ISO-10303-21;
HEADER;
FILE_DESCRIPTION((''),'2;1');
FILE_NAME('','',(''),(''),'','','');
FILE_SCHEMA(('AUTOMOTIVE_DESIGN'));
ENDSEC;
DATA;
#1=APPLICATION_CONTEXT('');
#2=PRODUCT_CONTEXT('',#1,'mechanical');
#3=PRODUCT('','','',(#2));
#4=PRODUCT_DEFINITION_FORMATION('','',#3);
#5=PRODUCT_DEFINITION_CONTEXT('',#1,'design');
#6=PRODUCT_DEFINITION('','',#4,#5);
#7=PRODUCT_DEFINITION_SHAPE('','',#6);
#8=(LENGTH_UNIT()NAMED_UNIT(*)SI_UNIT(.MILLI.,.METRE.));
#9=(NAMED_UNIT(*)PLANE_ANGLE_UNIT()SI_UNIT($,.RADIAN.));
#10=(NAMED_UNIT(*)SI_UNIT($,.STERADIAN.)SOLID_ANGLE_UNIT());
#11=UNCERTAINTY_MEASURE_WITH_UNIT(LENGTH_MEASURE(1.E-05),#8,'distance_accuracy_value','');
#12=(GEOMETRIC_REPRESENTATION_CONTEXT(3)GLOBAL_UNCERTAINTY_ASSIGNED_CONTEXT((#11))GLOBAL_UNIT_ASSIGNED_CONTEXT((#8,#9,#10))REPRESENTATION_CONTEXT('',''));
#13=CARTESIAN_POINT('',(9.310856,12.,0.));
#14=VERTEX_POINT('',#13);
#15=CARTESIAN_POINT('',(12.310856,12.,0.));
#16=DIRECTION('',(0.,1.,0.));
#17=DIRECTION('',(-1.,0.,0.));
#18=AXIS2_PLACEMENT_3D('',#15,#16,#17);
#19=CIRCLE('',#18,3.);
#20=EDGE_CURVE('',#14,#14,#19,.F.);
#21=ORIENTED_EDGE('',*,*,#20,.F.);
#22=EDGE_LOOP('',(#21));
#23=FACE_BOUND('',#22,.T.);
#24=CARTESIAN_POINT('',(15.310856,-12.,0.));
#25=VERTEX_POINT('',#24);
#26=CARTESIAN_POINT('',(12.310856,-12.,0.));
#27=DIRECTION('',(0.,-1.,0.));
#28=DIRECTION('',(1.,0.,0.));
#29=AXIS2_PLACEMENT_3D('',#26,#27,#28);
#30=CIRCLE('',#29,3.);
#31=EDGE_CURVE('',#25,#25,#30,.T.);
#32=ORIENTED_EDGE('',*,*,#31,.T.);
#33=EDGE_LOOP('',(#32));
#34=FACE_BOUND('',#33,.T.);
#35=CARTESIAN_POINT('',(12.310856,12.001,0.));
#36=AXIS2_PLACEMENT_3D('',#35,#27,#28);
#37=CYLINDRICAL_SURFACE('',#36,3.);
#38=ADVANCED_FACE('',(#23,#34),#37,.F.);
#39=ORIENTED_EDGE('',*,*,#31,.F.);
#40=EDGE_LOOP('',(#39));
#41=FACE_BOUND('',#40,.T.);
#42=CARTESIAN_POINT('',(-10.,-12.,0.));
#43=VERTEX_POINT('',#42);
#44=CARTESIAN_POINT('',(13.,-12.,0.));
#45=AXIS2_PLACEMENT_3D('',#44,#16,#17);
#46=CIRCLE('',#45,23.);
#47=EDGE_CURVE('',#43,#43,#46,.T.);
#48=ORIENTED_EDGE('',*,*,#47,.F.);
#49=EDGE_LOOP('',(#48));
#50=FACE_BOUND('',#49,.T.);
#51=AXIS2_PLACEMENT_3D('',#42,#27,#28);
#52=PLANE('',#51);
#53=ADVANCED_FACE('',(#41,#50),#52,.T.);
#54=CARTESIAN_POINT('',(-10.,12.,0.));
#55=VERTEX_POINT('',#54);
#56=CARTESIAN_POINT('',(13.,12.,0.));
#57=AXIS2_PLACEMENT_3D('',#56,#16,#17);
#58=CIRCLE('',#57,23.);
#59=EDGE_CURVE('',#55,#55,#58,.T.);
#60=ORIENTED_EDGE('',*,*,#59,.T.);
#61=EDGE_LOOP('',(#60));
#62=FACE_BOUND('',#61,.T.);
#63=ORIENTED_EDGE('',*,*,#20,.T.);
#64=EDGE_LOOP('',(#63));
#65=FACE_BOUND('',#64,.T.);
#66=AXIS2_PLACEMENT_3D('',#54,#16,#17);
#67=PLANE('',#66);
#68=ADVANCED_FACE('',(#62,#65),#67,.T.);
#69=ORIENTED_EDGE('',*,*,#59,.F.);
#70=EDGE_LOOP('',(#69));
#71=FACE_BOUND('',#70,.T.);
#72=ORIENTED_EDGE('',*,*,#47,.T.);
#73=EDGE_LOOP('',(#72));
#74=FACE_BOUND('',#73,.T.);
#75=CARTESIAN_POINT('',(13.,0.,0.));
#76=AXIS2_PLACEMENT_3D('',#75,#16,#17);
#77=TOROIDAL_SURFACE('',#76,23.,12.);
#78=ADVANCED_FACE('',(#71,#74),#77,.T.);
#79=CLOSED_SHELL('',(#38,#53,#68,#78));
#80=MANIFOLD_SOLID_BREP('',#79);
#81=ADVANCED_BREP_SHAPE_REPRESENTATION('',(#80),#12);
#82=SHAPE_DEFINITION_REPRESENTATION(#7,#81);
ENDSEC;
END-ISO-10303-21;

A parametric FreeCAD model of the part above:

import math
import FreeCAD as App
import Part
import Sketcher
from FreeCAD import Vector

doc = App.newDocument("Part")
body = doc.addObject("PartDesign::Body", "Body")

sketch1 = doc.addObject("Sketcher::SketchObject", "Sketch")
body.addObject(sketch1)
sketch1.AttachmentSupport = (doc.XY_Plane, [""])
sketch1.MapMode = "FlatFace"
sketch1.addGeometry([
    Part.LineSegment(Vector(13, 12, 0), Vector(-10, 12, 0)),
    Part.ArcOfCircle(Part.Circle(Vector(-10, 0, 0), Vector(0, 0, 1), 12), math.radians(90), math.radians(270)),
    Part.LineSegment(Vector(-10, -12, 0), Vector(13, -12, 0)),
    Part.LineSegment(Vector(13, -12, 0), Vector(13, 12, 0)),
], False)
sketch1.addGeometry(Part.LineSegment(Vector(13, 12, 0), Vector(13, -12, 0)), True)
sketch1.addConstraint([
    Sketcher.Constraint("Tangent", 0, 2, 1, 1),
    Sketcher.Constraint("Tangent", 1, 2, 2, 1),
    Sketcher.Constraint("Coincident", 2, 2, 3, 1),
    Sketcher.Constraint("Coincident", 3, 2, 0, 1),
    Sketcher.Constraint("Horizontal", 0),
    Sketcher.Constraint("Horizontal", 2),
    Sketcher.Constraint("Vertical", 3),
    Sketcher.Constraint("Vertical", 4),
    Sketcher.Constraint("Coincident", 4, 1, 3, 2),
    Sketcher.Constraint("PointOnObject", 1, 3, -1),
    Sketcher.Constraint("Horizontal", 1, 2, 4, 2),
    Sketcher.Constraint("Radius", 1, 12.0),
    Sketcher.Constraint("DistanceX", 0, 2, 0, 1, 23.0),
    Sketcher.Constraint("DistanceX", 1, 3, -1, 1, 10.0),
])
revolution = doc.addObject("PartDesign::Revolution", "Revolution")
body.addObject(revolution)
revolution.Profile = sketch1
revolution.ReferenceAxis = (sketch1, ["Axis0"])
revolution.Angle = 360

sketch2 = doc.addObject("Sketcher::SketchObject", "Sketch001")
body.addObject(sketch2)
sketch2.AttachmentSupport = (doc.XZ_Plane, [""])
sketch2.MapMode = "FlatFace"
sketch2.AttachmentOffset = App.Placement(Vector(0, 0, 12), App.Rotation())
sketch2.addGeometry(Part.Circle(Vector(12.3, 0, 0), Vector(0, 0, 1), 3), False)
sketch2.addConstraint([
    Sketcher.Constraint("PointOnObject", 0, 3, -1),
    Sketcher.Constraint("Diameter", 0, 6.0),
    Sketcher.Constraint("DistanceX", -1, 1, 0, 3, 12.310856),
])
pocket1 = doc.addObject("PartDesign::Pocket", "Pocket")
body.addObject(pocket1)
pocket1.Profile = sketch2
pocket1.Type = "UpToFirst"

doc.recompute()
